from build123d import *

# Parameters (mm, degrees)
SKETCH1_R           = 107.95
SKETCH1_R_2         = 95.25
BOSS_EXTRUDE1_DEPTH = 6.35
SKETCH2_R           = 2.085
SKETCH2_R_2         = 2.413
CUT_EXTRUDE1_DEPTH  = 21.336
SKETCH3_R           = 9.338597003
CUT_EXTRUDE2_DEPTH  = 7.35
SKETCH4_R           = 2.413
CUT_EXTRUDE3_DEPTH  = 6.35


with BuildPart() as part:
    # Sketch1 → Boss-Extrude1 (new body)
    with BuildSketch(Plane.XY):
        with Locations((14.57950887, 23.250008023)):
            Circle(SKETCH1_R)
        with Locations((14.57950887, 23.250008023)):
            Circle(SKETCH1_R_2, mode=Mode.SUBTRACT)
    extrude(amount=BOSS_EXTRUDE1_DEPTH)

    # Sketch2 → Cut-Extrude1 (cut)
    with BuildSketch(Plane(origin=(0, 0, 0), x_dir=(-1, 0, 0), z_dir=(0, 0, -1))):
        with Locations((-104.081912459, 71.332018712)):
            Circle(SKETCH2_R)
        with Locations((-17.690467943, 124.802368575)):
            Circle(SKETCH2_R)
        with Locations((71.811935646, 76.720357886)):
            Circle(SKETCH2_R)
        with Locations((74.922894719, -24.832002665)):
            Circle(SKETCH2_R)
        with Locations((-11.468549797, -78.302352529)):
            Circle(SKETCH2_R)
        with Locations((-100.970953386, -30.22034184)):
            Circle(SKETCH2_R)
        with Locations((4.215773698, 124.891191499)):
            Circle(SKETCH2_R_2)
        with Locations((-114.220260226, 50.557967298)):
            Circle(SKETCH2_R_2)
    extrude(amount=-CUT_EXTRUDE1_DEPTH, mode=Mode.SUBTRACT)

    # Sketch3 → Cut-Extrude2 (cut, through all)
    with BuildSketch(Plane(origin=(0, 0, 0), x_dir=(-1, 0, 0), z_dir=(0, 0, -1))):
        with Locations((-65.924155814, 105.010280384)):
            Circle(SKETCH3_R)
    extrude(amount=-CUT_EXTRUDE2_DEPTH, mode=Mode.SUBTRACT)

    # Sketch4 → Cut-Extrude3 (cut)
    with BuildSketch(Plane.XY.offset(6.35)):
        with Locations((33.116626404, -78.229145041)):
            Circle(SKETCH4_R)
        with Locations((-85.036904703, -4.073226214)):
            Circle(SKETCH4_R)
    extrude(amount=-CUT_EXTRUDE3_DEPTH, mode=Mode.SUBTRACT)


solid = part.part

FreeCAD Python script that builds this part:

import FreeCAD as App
import Part
import Sketcher

V = App.Vector
Q = App.Units.Quantity

doc = App.newDocument("Part")
body = doc.addObject("PartDesign::Body", "Body")

sketch1 = body.newObject("Sketcher::SketchObject", "Sketch")
sketch1.AttachmentSupport = (doc.getObject("XY_Plane"), [""])
sketch1.MapMode = "FlatFace"
sketch1.addGeometry([
    Part.Circle(V(15, 23, 0), V(0, 0, 1), 108),
    Part.Circle(V(15, 23, 0), V(0, 0, 1), 95),
], False)
sketch1.addConstraint([
    Sketcher.Constraint("Coincident", 1, 3, 0, 3),
    Sketcher.Constraint("Diameter", 0, Q("8.5 in")),
    Sketcher.Constraint("Diameter", 1, Q("7.5 in")),
    Sketcher.Constraint("DistanceX", -1, 1, 0, 3, Q("14.579509 mm")),
    Sketcher.Constraint("DistanceY", -1, 1, 0, 3, Q("23.250008 mm")),
])
pad1 = body.newObject("PartDesign::Pad", "Pad")
pad1.Profile = sketch1
pad1.Length = Q("0.25 in")

sketch2 = body.newObject("Sketcher::SketchObject", "Sketch001")
sketch2.AttachmentSupport = (doc.getObject("XY_Plane"), [""])
sketch2.MapMode = "FlatFace"
sketch2.addGeometry([
    Part.Circle(V(104.1, 71.3, 0), V(0, 0, 1), 2.1),
    Part.Circle(V(17.7, 124.8, 0), V(0, 0, 1), 2.1),
    Part.Circle(V(-71.8, 76.7, 0), V(0, 0, 1), 2.1),
    Part.Circle(V(-74.9, -24.8, 0), V(0, 0, 1), 2.1),
    Part.Circle(V(11.5, -78.3, 0), V(0, 0, 1), 2.1),
    Part.Circle(V(101, -30.2, 0), V(0, 0, 1), 2.1),
    Part.Circle(V(-4.2, 124.9, 0), V(0, 0, 1), 2.4),
    Part.Circle(V(114.2, 50.6, 0), V(0, 0, 1), 2.4),
], False)
sketch2.addConstraint([
    Sketcher.Constraint("Equal", 0, 1),
    Sketcher.Constraint("Equal", 1, 2),
    Sketcher.Constraint("Equal", 2, 3),
    Sketcher.Constraint("Equal", 3, 4),
    Sketcher.Constraint("Equal", 4, 5),
    Sketcher.Constraint("Equal", 6, 7),
    Sketcher.Constraint("Diameter", 6, Q("0.19 in")),
    Sketcher.Constraint("Diameter", 0, Q("4.17 mm")),
    Sketcher.Constraint("DistanceY", 5, 3, 2, 3, Q("106.9407 mm")),
    Sketcher.Constraint("DistanceY", 7, 3, 1, 3, Q("74.244401 mm")),
    Sketcher.Constraint("DistanceY", -1, 1, 0, 3, Q("71.332019 mm")),
    Sketcher.Constraint("DistanceY", -1, 1, 1, 3, Q("124.802369 mm")),
    Sketcher.Constraint("DistanceX", -1, 1, 4, 3, Q("11.46855 mm")),
    Sketcher.Constraint("DistanceY", 5, 3, -1, 1, Q("30.220342 mm")),
    Sketcher.Constraint("DistanceY", -1, 1, 6, 3, Q("124.891191 mm")),
    Sketcher.Constraint("DistanceX", -1, 1, 7, 3, Q("114.22026 mm")),
    Sketcher.Constraint("DistanceX", 2, 3, 0, 3, Q("175.893848 mm")),
    Sketcher.Constraint("DistanceX", 3, 3, 2, 3, Q("3.110959 mm")),
    Sketcher.Constraint("DistanceY", 3, 3, 2, 3, Q("101.552361 mm")),
    Sketcher.Constraint("DistanceY", 4, 3, 3, 3, Q("53.47035 mm")),
    Sketcher.Constraint("DistanceX", 4, 3, 1, 3, Q("6.221918 mm")),
    Sketcher.Constraint("DistanceX", 5, 3, 0, 3, Q("3.110959 mm")),
    Sketcher.Constraint("DistanceX", 6, 3, 1, 3, Q("21.906242 mm")),
    Sketcher.Constraint("DistanceX", 2, 3, 6, 3, Q("67.596162 mm")),
])
pocket1 = body.newObject("PartDesign::Pocket", "Pocket")
pocket1.Profile = sketch2
pocket1.Length = Q("0.84 in")
pocket1.Reversed = True

sketch3 = body.newObject("Sketcher::SketchObject", "Sketch002")
sketch3.AttachmentSupport = (doc.getObject("XY_Plane"), [""])
sketch3.MapMode = "FlatFace"
sketch3.addGeometry(Part.Circle(V(66, 105, 0), V(0, 0, 1), 9), False)
sketch3.addConstraint([
    Sketcher.Constraint("Diameter", 0, Q("18.677194 mm")),
    Sketcher.Constraint("DistanceY", -1, 1, 0, 3, Q("105.01028 mm")),
    Sketcher.Constraint("DistanceX", -1, 1, 0, 3, Q("65.924156 mm")),
])
pocket2 = body.newObject("PartDesign::Pocket", "Pocket001")
pocket2.Profile = sketch3
pocket2.Type = "ThroughAll"
pocket2.Reversed = True

sketch4 = body.newObject("Sketcher::SketchObject", "Sketch003")
sketch4.AttachmentSupport = (doc.getObject("XY_Plane"), [""])
sketch4.MapMode = "FlatFace"
sketch4.AttachmentOffset = App.Placement(V(0, 0, 0.25 * 25.4), App.Rotation())
sketch4.addGeometry([
    Part.Circle(V(33.1, -78.2, 0), V(0, 0, 1), 2.4),
    Part.Circle(V(-85, -4.1, 0), V(0, 0, 1), 2.4),
], False)
sketch4.addConstraint([
    Sketcher.Constraint("Equal", 0, 1),
    Sketcher.Constraint("Diameter", 0, Q("0.19 in")),
    Sketcher.Constraint("DistanceX", 1, 3, 0, 3, Q("118.153531 mm")),
    Sketcher.Constraint("DistanceY", 0, 3, 1, 3, Q("74.155919 mm")),
    Sketcher.Constraint("DistanceX", -1, 1, 0, 3, Q("33.116626 mm")),
    Sketcher.Constraint("DistanceY", 0, 3, -1, 1, Q("78.229145 mm")),
])
pocket3 = body.newObject("PartDesign::Pocket", "Pocket002")
pocket3.Profile = sketch4
pocket3.Length = Q("0.25 in")

doc.recompute()
